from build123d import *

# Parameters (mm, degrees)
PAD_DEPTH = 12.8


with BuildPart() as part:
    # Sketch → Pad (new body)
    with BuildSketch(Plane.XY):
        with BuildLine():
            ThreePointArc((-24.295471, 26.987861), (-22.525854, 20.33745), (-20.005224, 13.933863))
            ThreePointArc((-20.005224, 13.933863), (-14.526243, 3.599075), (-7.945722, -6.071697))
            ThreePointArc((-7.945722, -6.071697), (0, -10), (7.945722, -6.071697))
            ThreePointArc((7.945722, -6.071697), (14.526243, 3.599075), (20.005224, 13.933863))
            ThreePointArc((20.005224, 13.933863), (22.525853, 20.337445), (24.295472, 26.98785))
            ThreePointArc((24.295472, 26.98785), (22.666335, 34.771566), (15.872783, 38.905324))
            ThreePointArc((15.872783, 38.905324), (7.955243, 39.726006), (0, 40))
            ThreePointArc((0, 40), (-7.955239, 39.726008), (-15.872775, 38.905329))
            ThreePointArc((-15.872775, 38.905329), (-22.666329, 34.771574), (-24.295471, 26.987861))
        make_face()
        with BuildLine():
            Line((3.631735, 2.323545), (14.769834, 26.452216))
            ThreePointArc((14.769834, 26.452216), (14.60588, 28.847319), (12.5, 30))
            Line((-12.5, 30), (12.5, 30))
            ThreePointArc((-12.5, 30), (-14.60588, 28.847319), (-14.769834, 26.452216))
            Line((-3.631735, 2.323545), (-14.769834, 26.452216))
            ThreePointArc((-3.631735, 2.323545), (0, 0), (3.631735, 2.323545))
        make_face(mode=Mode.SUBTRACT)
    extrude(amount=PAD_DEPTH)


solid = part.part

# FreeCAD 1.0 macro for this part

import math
import FreeCAD as App
import Part
import Sketcher

doc = App.newDocument("Part")
body = doc.addObject("PartDesign::Body", "Body")

# Sketch on XY plane
sketch1 = body.newObject("Sketcher::SketchObject", "Sketch")
sketch1.AttachmentSupport = (doc.getObject("XY_Plane"), [""])
sketch1.MapMode = "FlatFace"
sketch1.addGeometry(Part.ArcOfCircle(Part.Circle(App.Vector(34.387555, 39.042263, 0), App.Vector(0, 0, 1), 59.908314), math.radians(-168.392031), math.radians(-155.221351)), False)
sketch1.addGeometry(Part.ArcOfCircle(Part.Circle(App.Vector(76.581642, 58.519593, 0), App.Vector(0, 0, 1), 106.380966), math.radians(-155.22135), math.radians(-142.614872)), False)
sketch1.addGeometry(Part.ArcOfCircle(Part.Circle(App.Vector(0, 0, 0), App.Vector(0, 0, 1), 10), math.radians(-142.614865), math.radians(-37.385135)), False)
sketch1.addGeometry(Part.ArcOfCircle(Part.Circle(App.Vector(-76.581642, 58.519593, 0), App.Vector(0, 0, 1), 106.380966), math.radians(-37.385128), math.radians(-24.77865)), False)
sketch1.addGeometry(Part.ArcOfCircle(Part.Circle(App.Vector(-34.387692, 39.042322, 0), App.Vector(0, 0, 1), 59.908464), math.radians(-24.778646), math.radians(-11.608009)), False)
sketch1.addGeometry(Part.ArcOfCircle(Part.Circle(App.Vector(14.500001, 28.999999, 0), App.Vector(0, 0, 1), 10), math.radians(-11.608013), math.radians(82.109623)), False)
sketch1.addGeometry(Part.ArcOfCircle(Part.Circle(App.Vector(-0.00001, -75.625025, 0), App.Vector(0, 0, 1), 115.625025), math.radians(82.109623), math.radians(89.999995)), False)
sketch1.addGeometry(Part.ArcOfCircle(Part.Circle(App.Vector(-0.000012, -75.625114, 0), App.Vector(0, 0, 1), 115.625114), math.radians(89.999994), math.radians(97.890356)), False)
sketch1.addGeometry(Part.ArcOfCircle(Part.Circle(App.Vector(-14.499997, 29.000002, 0), App.Vector(0, 0, 1), 10.000001), math.radians(97.890354), math.radians(191.607964)), False)
sketch1.addGeometry(Part.LineSegment(App.Vector(14.769834, 26.452216, 0), App.Vector(3.631735, 2.323545, 0)), False)
sketch1.addGeometry(Part.ArcOfCircle(Part.Circle(App.Vector(0, 4, 0), App.Vector(0, 0, 1), 4), math.radians(-155.221352), math.radians(-24.778648)), False)
sketch1.addGeometry(Part.LineSegment(App.Vector(-3.631735, 2.323545, 0), App.Vector(-14.769834, 26.452216, 0)), False)
sketch1.addGeometry(Part.ArcOfCircle(Part.Circle(App.Vector(-12.5, 27.5, 0), App.Vector(0, 0, 1), 2.5), math.radians(90.000002), math.radians(204.778648)), False)
sketch1.addGeometry(Part.LineSegment(App.Vector(-12.5, 30, 0), App.Vector(12.5, 30, 0)), False)
sketch1.addGeometry(Part.ArcOfCircle(Part.Circle(App.Vector(12.5, 27.5, 0), App.Vector(0, 0, 1), 2.5), math.radians(-24.778648), math.radians(89.999998)), False)
sketch1.addConstraint(Sketcher.Constraint("Coincident", 0, 2, 1, 1))
sketch1.addConstraint(Sketcher.Constraint("Coincident", 1, 2, 2, 1))
sketch1.addConstraint(Sketcher.Constraint("Coincident", 2, 2, 3, 1))
sketch1.addConstraint(Sketcher.Constraint("Coincident", 3, 2, 4, 1))
sketch1.addConstraint(Sketcher.Constraint("Coincident", 4, 2, 5, 1))
sketch1.addConstraint(Sketcher.Constraint("Coincident", 5, 2, 6, 1))
sketch1.addConstraint(Sketcher.Constraint("Coincident", 6, 2, 7, 1))
sketch1.addConstraint(Sketcher.Constraint("Coincident", 7, 2, 8, 1))
sketch1.addConstraint(Sketcher.Constraint("Coincident", 8, 2, 0, 1))
sketch1.addConstraint(Sketcher.Constraint("Coincident", 9, 2, 10, 2))
sketch1.addConstraint(Sketcher.Constraint("Coincident", 10, 1, 11, 1))
sketch1.addConstraint(Sketcher.Constraint("Coincident", 11, 2, 12, 2))
sketch1.addConstraint(Sketcher.Constraint("Coincident", 12, 1, 13, 1))
sketch1.addConstraint(Sketcher.Constraint("Coincident", 13, 2, 14, 2))
sketch1.addConstraint(Sketcher.Constraint("Coincident", 14, 1, 9, 1))
sketch1.addConstraint(Sketcher.Constraint("Horizontal", 13))
sketch1.addConstraint(Sketcher.Constraint("Coincident", 2, 3, -1, 1))
sketch1.addConstraint(Sketcher.Constraint("PointOnObject", 10, 3, -2))
sketch1.addConstraint(Sketcher.Constraint("PointOnObject", 6, 2, -2))
sketch1.addConstraint(Sketcher.Constraint("Radius", 2, 10.0))
sketch1.addConstraint(Sketcher.Constraint("Radius", 5, 10.0))
sketch1.addConstraint(Sketcher.Constraint("Radius", 8, 10.000001))
sketch1.addConstraint(Sketcher.Constraint("Radius", 10, 4.0))
sketch1.addConstraint(Sketcher.Constraint("Radius", 12, 2.5))
sketch1.addConstraint(Sketcher.Constraint("Radius", 14, 2.5))
sketch1.addConstraint(Sketcher.Constraint("DistanceX", 13, 1, 13, 2, 25.0))
sketch1.addConstraint(Sketcher.Constraint("DistanceY", -1, 1, 5, 3, 28.999999))
sketch1.addConstraint(Sketcher.Constraint("DistanceY", -1, 1, 8, 3, 29.000002))
sketch1.addConstraint(Sketcher.Constraint("DistanceY", -1, 1, 10, 3, 4.0))
sketch1.addConstraint(Sketcher.Constraint("DistanceY", -1, 1, 6, 2, 40.0))
sketch1.addConstraint(Sketcher.Constraint("DistanceY", -1, 1, 12, 1, 30.0))
sketch1.addConstraint(Sketcher.Constraint("DistanceX", 8, 3, 5, 3, 28.999998))
sketch1.addConstraint(Sketcher.Constraint("DistanceX", 12, 3, 5, 3, 27.000001))
sketch1.addConstraint(Sketcher.Constraint("DistanceX", 14, 3, 5, 3, 2.000001))
sketch1.addConstraint(Sketcher.Constraint("DistanceX", 13, 2, 5, 3, 2.000001))
sketch1.addConstraint(Sketcher.Constraint("DistanceX", -1, 1, 5, 3, 14.500001))
sketch1.addConstraint(Sketcher.Constraint("Radius", 0, 59.908314))
sketch1.addConstraint(Sketcher.Constraint("Radius", 1, 106.380966))
sketch1.addConstraint(Sketcher.Constraint("Radius", 3, 106.380966))
sketch1.addConstraint(Sketcher.Constraint("Radius", 4, 59.908464))
sketch1.addConstraint(Sketcher.Constraint("Radius", 6, 115.625025))
sketch1.addConstraint(Sketcher.Constraint("Radius", 7, 115.625114))
sketch1.addConstraint(Sketcher.Constraint("DistanceX", 0, 2, 1, 2, 12.059502))
sketch1.addConstraint(Sketcher.Constraint("DistanceY", 1, 2, 8, 3, 35.071699))
sketch1.addConstraint(Sketcher.Constraint("DistanceX", 2, 2, 3, 2, 12.059502))
sketch1.addConstraint(Sketcher.Constraint("DistanceX", -1, 1, 1, 3, 76.581642))
sketch1.addConstraint(Sketcher.Constraint("DistanceX", 3, 3, -1, 1, 76.581642))
sketch1.addConstraint(Sketcher.Constraint("DistanceY", -1, 1, 4, 2, 26.98785))
sketch1.addConstraint(Sketcher.Constraint("DistanceY", -1, 1, 7, 2, 38.905329))
sketch1.addConstraint(Sketcher.Constraint("DistanceX", 8, 2, -1, 1, 24.295471))
sketch1.addConstraint(Sketcher.Constraint("DistanceY", 2, 2, 0, 2, 20.00556))
sketch1.addConstraint(Sketcher.Constraint("DistanceX", 5, 3, 5, 2, 1.372782))
sketch1.addConstraint(Sketcher.Constraint("DistanceY", 1, 2, 9, 2, 8.395242))
sketch1.addConstraint(Sketcher.Constraint("DistanceX", 10, 1, 9, 2, 7.26347))
sketch1.addConstraint(Sketcher.Constraint("DistanceX", 7, 2, 11, 2, 1.102941))
sketch1.addConstraint(Sketcher.Constraint("DistanceX", 14, 1, 4, 2, 9.525638))
pad1 = body.newObject("PartDesign::Pad", "Pad")
pad1.Profile = sketch1
pad1.Length = 12.8

doc.recompute()
